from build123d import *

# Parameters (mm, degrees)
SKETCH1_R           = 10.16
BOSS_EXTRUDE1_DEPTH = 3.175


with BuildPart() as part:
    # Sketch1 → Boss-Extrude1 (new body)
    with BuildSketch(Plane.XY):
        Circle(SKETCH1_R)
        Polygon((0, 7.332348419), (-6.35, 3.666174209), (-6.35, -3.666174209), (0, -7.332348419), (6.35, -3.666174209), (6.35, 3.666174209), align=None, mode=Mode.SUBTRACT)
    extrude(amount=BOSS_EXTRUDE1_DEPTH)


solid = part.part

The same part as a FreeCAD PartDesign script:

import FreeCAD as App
import Part
import Sketcher
from FreeCAD import Vector
Q = App.Units.Quantity

doc = App.newDocument("Part")
body = doc.addObject("PartDesign::Body", "Body")

# Sketch on XY plane
sketch1 = body.newObject("Sketcher::SketchObject", "Sketch")
sketch1.AttachmentSupport = (doc.getObject("XY_Plane"), [""])
sketch1.MapMode = "FlatFace"
sketch1.addGeometry([
    Part.Circle(Vector(0, 0, 0), Vector(0, 0, 1), 10),  # 0
    Part.LineSegment(Vector(-6, 4, 0), Vector(0, 7, 0)),  # 1
    Part.LineSegment(Vector(0, 7, 0), Vector(6, 4, 0)),  # 2
    Part.LineSegment(Vector(6, 4, 0), Vector(6, -4, 0)),  # 3
    Part.LineSegment(Vector(6, -4, 0), Vector(0, -7, 0)),  # 4
    Part.LineSegment(Vector(0, -7, 0), Vector(-6, -4, 0)),  # 5
    Part.LineSegment(Vector(-6, -4, 0), Vector(-6, 4, 0)),  # 6
], False)
sketch1.addConstraint([
    Sketcher.Constraint("Coincident", 1, 2, 2, 1),
    Sketcher.Constraint("Coincident", 2, 2, 3, 1),
    Sketcher.Constraint("Coincident", 3, 2, 4, 1),
    Sketcher.Constraint("Coincident", 4, 2, 5, 1),
    Sketcher.Constraint("Coincident", 5, 2, 6, 1),
    Sketcher.Constraint("Coincident", 6, 2, 1, 1),
    Sketcher.Constraint("Vertical", 3),
    Sketcher.Constraint("Vertical", 6),
    Sketcher.Constraint("Coincident", 0, 3, -1, 1),
    Sketcher.Constraint("Symmetric", 1, 2, 4, 2, -1, 1),
    Sketcher.Constraint("Symmetric", 2, 2, 5, 2, -1, 1),
    Sketcher.Constraint("PointOnObject", 1, 2, -2),
    Sketcher.Constraint("Parallel", 1, 4),
    Sketcher.Constraint("Horizontal", 3, 2, 5, 2),
    Sketcher.Constraint("Diameter", 0, Q("0.8 in")),
    Sketcher.Constraint("Angle", 1, Q("30 deg")),
    Sketcher.Constraint("DistanceX", 5, 2, 3, 2, Q("0.5 in")),
    Sketcher.Constraint("DistanceY", 3, 2, 3, 1, 7.332348),
])
pad1 = body.newObject("PartDesign::Pad", "Pad")
pad1.Profile = sketch1
pad1.Length = Q("0.125 in")

doc.recompute()
